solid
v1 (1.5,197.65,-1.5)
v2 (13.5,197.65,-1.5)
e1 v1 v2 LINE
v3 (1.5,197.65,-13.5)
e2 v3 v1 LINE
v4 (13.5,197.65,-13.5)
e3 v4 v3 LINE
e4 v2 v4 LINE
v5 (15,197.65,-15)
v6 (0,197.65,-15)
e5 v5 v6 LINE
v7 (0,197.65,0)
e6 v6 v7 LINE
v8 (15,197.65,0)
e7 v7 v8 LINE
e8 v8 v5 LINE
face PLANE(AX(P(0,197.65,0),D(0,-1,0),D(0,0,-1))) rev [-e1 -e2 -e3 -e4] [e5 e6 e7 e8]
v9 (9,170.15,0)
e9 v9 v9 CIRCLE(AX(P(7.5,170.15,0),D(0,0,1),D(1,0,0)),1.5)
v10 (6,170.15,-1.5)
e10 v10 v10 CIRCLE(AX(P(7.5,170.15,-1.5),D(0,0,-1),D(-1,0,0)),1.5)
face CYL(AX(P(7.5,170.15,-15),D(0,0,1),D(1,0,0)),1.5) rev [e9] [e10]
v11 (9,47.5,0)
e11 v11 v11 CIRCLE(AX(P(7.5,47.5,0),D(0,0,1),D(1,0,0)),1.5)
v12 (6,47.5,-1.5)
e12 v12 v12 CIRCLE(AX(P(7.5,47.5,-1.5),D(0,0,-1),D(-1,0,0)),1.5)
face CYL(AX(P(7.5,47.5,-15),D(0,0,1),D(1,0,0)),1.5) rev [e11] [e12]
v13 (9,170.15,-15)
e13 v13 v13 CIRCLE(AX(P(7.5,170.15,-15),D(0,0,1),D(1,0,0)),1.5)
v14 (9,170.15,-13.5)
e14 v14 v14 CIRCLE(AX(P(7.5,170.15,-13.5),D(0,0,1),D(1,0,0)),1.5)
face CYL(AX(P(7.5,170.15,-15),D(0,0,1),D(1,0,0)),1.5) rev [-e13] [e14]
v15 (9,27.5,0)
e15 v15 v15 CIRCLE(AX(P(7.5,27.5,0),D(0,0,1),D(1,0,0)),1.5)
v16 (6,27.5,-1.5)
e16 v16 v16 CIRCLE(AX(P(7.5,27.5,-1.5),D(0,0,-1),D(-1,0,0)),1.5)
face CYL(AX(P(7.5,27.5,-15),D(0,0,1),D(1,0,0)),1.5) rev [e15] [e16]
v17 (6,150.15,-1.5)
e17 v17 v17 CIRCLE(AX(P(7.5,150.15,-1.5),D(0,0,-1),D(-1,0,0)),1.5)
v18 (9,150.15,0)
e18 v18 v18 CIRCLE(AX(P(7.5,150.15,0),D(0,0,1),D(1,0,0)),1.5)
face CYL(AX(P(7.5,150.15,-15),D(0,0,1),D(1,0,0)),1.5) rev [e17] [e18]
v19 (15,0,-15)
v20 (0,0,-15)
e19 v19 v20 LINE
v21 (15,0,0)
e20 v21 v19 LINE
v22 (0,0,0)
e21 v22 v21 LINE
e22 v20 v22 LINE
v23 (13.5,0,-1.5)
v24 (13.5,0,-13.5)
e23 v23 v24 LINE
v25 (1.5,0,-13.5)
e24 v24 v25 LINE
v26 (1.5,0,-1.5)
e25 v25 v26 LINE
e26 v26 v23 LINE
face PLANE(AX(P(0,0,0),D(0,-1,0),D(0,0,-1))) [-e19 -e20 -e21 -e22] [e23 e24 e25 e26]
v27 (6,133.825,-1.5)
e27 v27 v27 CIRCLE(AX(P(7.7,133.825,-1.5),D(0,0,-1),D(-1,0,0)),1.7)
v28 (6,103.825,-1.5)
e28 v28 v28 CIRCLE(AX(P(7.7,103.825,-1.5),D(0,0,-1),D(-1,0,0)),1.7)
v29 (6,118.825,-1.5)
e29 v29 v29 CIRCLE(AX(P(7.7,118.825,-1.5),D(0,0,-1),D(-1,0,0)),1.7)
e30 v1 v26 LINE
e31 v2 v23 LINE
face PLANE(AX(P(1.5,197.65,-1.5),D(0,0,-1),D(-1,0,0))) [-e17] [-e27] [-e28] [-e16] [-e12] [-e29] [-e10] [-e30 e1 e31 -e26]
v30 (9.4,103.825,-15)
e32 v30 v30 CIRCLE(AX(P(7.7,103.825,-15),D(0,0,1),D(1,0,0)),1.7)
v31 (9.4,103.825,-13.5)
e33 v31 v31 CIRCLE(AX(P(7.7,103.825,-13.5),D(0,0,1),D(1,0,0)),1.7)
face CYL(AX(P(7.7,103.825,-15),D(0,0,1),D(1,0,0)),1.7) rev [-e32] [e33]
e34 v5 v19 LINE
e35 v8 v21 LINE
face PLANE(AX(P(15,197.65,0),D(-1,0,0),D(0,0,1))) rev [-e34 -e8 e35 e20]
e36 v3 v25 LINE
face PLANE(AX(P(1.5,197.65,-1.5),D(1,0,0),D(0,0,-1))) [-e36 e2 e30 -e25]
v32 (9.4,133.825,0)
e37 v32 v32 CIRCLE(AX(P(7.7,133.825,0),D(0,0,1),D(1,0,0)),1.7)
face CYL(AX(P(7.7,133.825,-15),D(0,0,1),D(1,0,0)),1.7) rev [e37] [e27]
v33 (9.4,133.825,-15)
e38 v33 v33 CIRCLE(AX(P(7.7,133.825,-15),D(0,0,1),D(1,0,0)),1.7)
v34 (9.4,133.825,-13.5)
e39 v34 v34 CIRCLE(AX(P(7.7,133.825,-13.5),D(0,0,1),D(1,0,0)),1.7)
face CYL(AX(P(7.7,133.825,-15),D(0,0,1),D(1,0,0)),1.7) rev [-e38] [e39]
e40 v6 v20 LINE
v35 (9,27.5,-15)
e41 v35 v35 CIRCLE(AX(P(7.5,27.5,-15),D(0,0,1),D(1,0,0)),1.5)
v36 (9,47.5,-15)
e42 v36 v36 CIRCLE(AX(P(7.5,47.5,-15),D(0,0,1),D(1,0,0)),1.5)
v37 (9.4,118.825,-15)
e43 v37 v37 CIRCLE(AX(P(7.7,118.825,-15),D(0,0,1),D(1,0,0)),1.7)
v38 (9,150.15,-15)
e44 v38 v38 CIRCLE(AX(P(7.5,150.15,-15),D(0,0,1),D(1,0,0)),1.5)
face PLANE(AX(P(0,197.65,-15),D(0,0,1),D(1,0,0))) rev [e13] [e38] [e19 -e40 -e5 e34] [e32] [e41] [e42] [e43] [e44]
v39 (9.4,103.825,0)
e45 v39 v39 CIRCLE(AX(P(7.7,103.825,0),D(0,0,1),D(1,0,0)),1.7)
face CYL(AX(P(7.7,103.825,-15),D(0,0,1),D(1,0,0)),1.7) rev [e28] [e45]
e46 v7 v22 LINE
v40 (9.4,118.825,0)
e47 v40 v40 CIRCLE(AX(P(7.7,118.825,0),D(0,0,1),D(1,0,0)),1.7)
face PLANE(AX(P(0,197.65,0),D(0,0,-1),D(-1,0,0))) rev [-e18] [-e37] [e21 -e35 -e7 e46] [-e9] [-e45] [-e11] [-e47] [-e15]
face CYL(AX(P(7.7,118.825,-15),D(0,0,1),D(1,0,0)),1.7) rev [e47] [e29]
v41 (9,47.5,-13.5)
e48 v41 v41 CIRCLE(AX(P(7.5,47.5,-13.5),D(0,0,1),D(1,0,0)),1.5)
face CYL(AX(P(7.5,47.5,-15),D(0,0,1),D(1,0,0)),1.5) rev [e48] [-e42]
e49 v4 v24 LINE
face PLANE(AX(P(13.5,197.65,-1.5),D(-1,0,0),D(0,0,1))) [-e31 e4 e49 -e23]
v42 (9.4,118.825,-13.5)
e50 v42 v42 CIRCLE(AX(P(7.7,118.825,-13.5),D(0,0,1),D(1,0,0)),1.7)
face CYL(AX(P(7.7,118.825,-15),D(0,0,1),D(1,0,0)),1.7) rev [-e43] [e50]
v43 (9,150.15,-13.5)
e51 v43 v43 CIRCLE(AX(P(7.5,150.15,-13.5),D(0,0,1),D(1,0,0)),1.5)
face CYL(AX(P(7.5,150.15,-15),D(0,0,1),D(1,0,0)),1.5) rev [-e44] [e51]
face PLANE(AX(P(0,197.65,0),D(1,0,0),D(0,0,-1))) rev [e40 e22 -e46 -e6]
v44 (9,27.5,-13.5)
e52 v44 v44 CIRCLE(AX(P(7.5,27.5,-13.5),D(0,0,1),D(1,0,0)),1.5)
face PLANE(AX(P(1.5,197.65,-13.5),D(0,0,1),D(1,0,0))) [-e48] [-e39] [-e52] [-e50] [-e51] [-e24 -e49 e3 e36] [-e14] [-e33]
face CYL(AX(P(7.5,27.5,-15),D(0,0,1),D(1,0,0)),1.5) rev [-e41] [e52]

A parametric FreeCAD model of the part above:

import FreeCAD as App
import Part
import Sketcher

doc = App.newDocument("Part")
body = doc.addObject("PartDesign::Body", "Body")

# Sketch on XZ plane
sketch1 = body.newObject("Sketcher::SketchObject", "Sketch")
sketch1.AttachmentSupport = (doc.getObject("XZ_Plane"), [""])
sketch1.MapMode = "FlatFace"
sketch1.addGeometry([
    Part.LineSegment(App.Vector(0, -15, 0), App.Vector(0, 0, 0)),  # 0
    Part.LineSegment(App.Vector(0, 0, 0), App.Vector(15, 0, 0)),  # 1
    Part.LineSegment(App.Vector(15, 0, 0), App.Vector(15, -15, 0)),  # 2
    Part.LineSegment(App.Vector(15, -15, 0), App.Vector(0, -15, 0)),  # 3
    Part.LineSegment(App.Vector(14, -2, 0), App.Vector(2, -2, 0)),  # 4
    Part.LineSegment(App.Vector(2, -2, 0), App.Vector(2, -14, 0)),  # 5
    Part.LineSegment(App.Vector(2, -14, 0), App.Vector(14, -14, 0)),  # 6
    Part.LineSegment(App.Vector(14, -14, 0), App.Vector(14, -2, 0)),  # 7
], False)
sketch1.addConstraint([
    Sketcher.Constraint("Coincident", 0, 2, 1, 1),
    Sketcher.Constraint("Coincident", 1, 2, 2, 1),
    Sketcher.Constraint("Coincident", 2, 2, 3, 1),
    Sketcher.Constraint("Coincident", 3, 2, 0, 1),
    Sketcher.Constraint("Coincident", 4, 2, 5, 1),
    Sketcher.Constraint("Coincident", 5, 2, 6, 1),
    Sketcher.Constraint("Coincident", 6, 2, 7, 1),
    Sketcher.Constraint("Coincident", 7, 2, 4, 1),
    Sketcher.Constraint("Vertical", 0),
    Sketcher.Constraint("Horizontal", 1),
    Sketcher.Constraint("Vertical", 2),
    Sketcher.Constraint("Horizontal", 3),
    Sketcher.Constraint("Horizontal", 4),
    Sketcher.Constraint("Vertical", 5),
    Sketcher.Constraint("Horizontal", 6),
    Sketcher.Constraint("Vertical", 7),
    Sketcher.Constraint("Coincident", 0, 2, -1, 1),
    Sketcher.Constraint("Equal", 3, 0),
    Sketcher.Constraint("Equal", 6, 5),
    Sketcher.Constraint("DistanceX", 1, 1, 1, 2, 15.0),
    Sketcher.Constraint("DistanceX", 4, 2, 4, 1, 12.0),
    Sketcher.Constraint("DistanceX", -1, 1, 4, 2, 1.5),
    Sketcher.Constraint("DistanceY", 4, 2, -1, 1, 1.5),
])
pad1 = body.newObject("PartDesign::Pad", "Pad")
pad1.Profile = sketch1
pad1.Length = 197.65
pad1.Reversed = True

# Sketch on XY plane
sketch2 = body.newObject("Sketcher::SketchObject", "Sketch001")
sketch2.AttachmentSupport = (doc.getObject("XY_Plane"), [""])
sketch2.MapMode = "FlatFace"
sketch2.addGeometry([
    Part.Circle(App.Vector(7.5, 47.5, 0), App.Vector(0, 0, 1), 1.5),  # 0
    Part.Circle(App.Vector(7.5, 27.5, 0), App.Vector(0, 0, 1), 1.5),  # 1
    Part.Circle(App.Vector(7.7, 103.8, 0), App.Vector(0, 0, 1), 1.7),  # 2
    Part.Circle(App.Vector(7.7, 118.8, 0), App.Vector(0, 0, 1), 1.7),  # 3
    Part.Circle(App.Vector(7.7, 133.8, 0), App.Vector(0, 0, 1), 1.7),  # 4
    Part.Circle(App.Vector(7.5, 150.2, 0), App.Vector(0, 0, 1), 1.5),  # 5
    Part.Circle(App.Vector(7.5, 170.2, 0), App.Vector(0, 0, 1), 1.5),  # 6
], False)
sketch2.addConstraint([
    Sketcher.Constraint("Equal", 0, 1),
    Sketcher.Constraint("Equal", 2, 3),
    Sketcher.Constraint("Equal", 3, 4),
    Sketcher.Constraint("Equal", 1, 5),
    Sketcher.Constraint("Equal", 5, 6),
    Sketcher.Constraint("Vertical", 0, 3, 1, 3),
    Sketcher.Constraint("Vertical", 2, 3, 3, 3),
    Sketcher.Constraint("Vertical", 3, 3, 4, 3),
    Sketcher.Constraint("Vertical", 1, 3, 5, 3),
    Sketcher.Constraint("Vertical", 5, 3, 6, 3),
    Sketcher.Constraint("Diameter", 0, 3.0),
    Sketcher.Constraint("Diameter", 2, 3.4),
    Sketcher.Constraint("DistanceY", 1, 3, 0, 3, 20.0),
    Sketcher.Constraint("DistanceY", 2, 3, 3, 3, 15.0),
    Sketcher.Constraint("DistanceY", 3, 3, 4, 3, 15.0),
    Sketcher.Constraint("DistanceY", 5, 3, 6, 3, 20.0),
    Sketcher.Constraint("DistanceX", -1, 1, 0, 3, 7.5),
    Sketcher.Constraint("DistanceY", -1, 1, 0, 3, 47.5),
    Sketcher.Constraint("DistanceX", -1, 1, 2, 3, 7.7),
    Sketcher.Constraint("DistanceY", -1, 1, 5, 3, 150.15),
    Sketcher.Constraint("DistanceY", -1, 1, 2, 3, 103.825),
])
pocket1 = body.newObject("PartDesign::Pocket", "Pocket")
pocket1.Profile = sketch2
pocket1.Type = "ThroughAll"

doc.recompute()
